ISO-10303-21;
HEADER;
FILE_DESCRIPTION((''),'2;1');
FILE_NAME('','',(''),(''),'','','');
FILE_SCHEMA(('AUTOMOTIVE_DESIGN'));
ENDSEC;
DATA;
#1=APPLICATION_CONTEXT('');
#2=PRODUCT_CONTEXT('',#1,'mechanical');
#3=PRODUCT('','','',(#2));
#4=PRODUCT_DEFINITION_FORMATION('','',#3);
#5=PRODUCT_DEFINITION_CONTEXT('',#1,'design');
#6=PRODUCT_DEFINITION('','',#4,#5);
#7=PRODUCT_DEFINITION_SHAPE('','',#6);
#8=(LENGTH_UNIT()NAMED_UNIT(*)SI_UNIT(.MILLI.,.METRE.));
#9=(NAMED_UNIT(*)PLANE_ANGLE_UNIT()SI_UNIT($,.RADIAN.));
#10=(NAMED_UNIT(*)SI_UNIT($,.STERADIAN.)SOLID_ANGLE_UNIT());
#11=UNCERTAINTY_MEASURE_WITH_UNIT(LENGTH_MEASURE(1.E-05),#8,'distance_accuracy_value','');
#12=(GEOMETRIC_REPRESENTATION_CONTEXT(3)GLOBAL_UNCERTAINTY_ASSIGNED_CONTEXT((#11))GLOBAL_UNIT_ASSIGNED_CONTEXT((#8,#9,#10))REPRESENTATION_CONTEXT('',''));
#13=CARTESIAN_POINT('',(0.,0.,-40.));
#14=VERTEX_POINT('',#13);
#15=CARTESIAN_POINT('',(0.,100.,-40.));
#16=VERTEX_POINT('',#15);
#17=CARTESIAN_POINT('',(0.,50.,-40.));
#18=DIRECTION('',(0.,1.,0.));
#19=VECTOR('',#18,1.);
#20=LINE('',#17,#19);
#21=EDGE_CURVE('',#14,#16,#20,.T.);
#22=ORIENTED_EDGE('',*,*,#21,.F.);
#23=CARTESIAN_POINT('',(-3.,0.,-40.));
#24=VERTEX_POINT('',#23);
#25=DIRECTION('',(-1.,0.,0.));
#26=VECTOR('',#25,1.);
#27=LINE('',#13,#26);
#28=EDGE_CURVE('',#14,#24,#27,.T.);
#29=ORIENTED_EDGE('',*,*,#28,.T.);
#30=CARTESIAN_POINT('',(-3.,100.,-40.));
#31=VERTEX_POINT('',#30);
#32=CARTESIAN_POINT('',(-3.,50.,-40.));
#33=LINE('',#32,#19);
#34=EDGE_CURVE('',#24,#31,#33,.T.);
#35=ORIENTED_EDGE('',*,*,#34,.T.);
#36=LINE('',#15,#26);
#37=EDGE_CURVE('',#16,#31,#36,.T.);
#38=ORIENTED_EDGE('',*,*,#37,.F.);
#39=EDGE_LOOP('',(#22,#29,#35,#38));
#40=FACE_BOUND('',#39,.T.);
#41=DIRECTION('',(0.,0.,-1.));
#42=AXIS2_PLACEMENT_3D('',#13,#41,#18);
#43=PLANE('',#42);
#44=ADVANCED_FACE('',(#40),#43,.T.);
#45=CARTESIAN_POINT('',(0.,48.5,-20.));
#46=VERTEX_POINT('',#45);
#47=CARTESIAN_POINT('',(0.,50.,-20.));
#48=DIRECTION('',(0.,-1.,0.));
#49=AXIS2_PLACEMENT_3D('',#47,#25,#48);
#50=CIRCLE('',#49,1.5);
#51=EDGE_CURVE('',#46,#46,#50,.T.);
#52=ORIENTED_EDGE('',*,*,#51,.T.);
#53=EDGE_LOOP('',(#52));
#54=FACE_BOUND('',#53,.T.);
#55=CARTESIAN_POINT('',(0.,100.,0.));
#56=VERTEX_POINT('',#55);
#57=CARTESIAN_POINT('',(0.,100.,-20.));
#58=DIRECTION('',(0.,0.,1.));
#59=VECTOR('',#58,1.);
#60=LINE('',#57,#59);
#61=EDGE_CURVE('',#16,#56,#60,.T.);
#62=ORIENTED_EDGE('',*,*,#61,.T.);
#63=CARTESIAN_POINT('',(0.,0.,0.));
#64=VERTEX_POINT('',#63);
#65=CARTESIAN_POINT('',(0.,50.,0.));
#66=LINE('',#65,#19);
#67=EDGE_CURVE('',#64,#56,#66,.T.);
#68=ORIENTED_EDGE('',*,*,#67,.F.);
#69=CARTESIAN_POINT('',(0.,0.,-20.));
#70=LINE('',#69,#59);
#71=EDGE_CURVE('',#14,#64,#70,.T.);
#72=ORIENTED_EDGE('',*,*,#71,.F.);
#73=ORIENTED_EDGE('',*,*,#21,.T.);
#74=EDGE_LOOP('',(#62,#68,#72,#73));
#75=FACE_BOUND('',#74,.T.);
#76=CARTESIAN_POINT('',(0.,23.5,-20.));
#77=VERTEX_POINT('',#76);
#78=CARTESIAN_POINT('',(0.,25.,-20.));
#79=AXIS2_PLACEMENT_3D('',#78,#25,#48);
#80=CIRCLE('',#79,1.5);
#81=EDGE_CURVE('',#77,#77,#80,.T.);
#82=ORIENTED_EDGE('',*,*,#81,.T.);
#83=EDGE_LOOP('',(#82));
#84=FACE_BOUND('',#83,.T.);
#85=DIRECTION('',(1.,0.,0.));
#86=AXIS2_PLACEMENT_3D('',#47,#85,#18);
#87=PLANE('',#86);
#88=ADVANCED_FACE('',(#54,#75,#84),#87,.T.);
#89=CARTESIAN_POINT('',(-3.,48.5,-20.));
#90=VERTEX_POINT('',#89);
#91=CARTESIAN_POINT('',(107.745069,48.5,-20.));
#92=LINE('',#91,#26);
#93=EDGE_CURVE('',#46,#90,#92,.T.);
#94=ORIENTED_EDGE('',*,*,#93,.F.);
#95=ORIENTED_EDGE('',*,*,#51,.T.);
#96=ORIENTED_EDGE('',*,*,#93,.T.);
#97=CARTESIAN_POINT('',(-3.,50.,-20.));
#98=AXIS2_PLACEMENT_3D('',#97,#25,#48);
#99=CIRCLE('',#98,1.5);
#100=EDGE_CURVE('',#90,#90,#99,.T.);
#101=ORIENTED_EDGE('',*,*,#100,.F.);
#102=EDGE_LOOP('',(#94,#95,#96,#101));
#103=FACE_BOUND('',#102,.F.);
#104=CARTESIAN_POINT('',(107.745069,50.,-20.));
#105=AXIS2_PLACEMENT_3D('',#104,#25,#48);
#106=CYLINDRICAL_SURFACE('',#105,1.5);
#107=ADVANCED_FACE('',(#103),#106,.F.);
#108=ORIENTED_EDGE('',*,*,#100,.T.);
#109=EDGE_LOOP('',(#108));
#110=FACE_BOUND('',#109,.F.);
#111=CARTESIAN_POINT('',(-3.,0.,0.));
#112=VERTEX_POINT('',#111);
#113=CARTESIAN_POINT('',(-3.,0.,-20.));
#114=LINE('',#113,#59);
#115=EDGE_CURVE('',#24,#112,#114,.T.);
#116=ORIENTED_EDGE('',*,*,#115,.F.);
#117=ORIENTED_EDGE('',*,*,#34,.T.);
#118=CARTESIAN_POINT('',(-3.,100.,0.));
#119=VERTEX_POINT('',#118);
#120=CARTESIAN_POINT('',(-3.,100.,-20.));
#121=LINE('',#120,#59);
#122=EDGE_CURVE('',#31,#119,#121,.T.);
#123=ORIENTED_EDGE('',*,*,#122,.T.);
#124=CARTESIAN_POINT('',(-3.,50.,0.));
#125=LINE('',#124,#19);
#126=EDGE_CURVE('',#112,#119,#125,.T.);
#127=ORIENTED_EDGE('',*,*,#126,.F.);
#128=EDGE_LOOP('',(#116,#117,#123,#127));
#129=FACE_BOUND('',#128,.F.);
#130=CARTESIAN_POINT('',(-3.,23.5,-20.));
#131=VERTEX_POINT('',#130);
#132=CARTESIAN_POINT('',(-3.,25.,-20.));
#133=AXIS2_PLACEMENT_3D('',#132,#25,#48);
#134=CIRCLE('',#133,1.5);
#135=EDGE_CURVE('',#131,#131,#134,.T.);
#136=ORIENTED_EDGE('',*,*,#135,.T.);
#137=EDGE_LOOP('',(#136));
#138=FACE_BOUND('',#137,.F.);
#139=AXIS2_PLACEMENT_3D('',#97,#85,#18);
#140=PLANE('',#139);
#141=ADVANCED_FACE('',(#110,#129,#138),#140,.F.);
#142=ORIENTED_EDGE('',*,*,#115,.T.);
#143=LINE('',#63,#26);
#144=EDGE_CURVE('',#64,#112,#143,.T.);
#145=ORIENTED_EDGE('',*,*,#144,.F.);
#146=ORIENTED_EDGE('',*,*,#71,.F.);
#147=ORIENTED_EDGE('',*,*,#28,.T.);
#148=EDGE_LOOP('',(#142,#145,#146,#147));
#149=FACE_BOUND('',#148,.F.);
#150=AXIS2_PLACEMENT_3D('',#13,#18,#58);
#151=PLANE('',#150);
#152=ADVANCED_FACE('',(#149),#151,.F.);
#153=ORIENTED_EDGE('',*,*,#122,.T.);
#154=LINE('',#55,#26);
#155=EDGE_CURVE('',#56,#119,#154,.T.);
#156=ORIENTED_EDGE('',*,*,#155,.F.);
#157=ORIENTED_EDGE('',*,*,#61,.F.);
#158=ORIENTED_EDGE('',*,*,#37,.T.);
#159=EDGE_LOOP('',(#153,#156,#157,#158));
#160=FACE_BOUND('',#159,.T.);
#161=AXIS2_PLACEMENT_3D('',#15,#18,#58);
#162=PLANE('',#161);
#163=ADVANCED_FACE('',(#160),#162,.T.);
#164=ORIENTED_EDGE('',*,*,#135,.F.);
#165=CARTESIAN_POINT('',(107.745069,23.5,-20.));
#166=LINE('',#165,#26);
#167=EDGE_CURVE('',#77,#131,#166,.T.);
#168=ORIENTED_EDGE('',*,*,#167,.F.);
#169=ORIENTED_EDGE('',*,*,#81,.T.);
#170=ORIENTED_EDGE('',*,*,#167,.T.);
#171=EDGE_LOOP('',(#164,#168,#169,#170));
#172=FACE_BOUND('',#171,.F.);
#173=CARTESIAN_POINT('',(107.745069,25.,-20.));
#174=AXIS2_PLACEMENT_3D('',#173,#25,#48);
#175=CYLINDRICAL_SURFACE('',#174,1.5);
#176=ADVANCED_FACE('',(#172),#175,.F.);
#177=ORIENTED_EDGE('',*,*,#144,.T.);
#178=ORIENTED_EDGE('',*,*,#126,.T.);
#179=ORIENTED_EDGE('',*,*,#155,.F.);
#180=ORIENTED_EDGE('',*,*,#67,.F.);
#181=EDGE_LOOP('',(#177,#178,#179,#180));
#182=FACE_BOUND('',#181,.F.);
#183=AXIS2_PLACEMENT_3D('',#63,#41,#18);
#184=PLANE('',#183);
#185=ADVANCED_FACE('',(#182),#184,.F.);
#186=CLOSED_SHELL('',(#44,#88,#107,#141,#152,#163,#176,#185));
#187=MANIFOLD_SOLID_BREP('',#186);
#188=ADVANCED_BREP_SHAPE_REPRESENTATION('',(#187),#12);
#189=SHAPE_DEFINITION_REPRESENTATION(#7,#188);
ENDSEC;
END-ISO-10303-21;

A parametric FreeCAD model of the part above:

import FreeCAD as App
import Part
import Sketcher
from FreeCAD import Vector


def add_polygon(sketch, points):
    """Adds a closed chain of lines whose ends are joined by coincident constraints."""
    first, n = sketch.GeometryCount, len(points)
    for a, b in zip(points, points[1:] + points[:1]):
        sketch.addGeometry(Part.LineSegment(App.Vector(*a, 0), App.Vector(*b, 0)), False)
    for i in range(n):
        sketch.addConstraint(Sketcher.Constraint("Coincident", first + i, 2, first + (i + 1) % n, 1))

doc = App.newDocument("Part")
body = doc.addObject("PartDesign::Body", "Body")

# Sketch on YZ plane
sketch1 = body.newObject("Sketcher::SketchObject", "Sketch")
sketch1.AttachmentSupport = (doc.getObject("YZ_Plane"), [""])
sketch1.MapMode = "FlatFace"
add_polygon(sketch1, [(0, 0), (0, -40), (100, -40), (100, 0)])  # lines 0-3
sketch1.addConstraint(Sketcher.Constraint("Vertical", 0))
sketch1.addConstraint(Sketcher.Constraint("Horizontal", 1))
sketch1.addConstraint(Sketcher.Constraint("Vertical", 2))
sketch1.addConstraint(Sketcher.Constraint("Horizontal", 3))
sketch1.addConstraint(Sketcher.Constraint("Coincident", 3, 2, -1, 1))
sketch1.addConstraint(Sketcher.Constraint("DistanceX", 1, 1, 1, 2, 100.0))
sketch1.addConstraint(Sketcher.Constraint("DistanceY", 0, 2, 0, 1, 40.0))
pad1 = body.newObject("PartDesign::Pad", "Pad")
pad1.Profile = sketch1
pad1.Length = 3
pad1.Reversed = True

# Sketch on YZ plane
sketch2 = body.newObject("Sketcher::SketchObject", "Sketch001")
sketch2.AttachmentSupport = (doc.getObject("YZ_Plane"), [""])
sketch2.MapMode = "FlatFace"
sketch2.addGeometry(Part.Circle(Vector(50, -20, 0), Vector(0, 0, 1), 1.5), False)
sketch2.addGeometry(Part.Circle(Vector(25, -20, 0), Vector(0, 0, 1), 1.5), False)
sketch2.addConstraint(Sketcher.Constraint("Equal", 0, 1))
sketch2.addConstraint(Sketcher.Constraint("Horizontal", 0, 3, 1, 3))
sketch2.addConstraint(Sketcher.Constraint("Diameter", 0, 3.0))
sketch2.addConstraint(Sketcher.Constraint("DistanceX", -1, 1, 0, 3, 50.0))
sketch2.addConstraint(Sketcher.Constraint("DistanceY", 0, 3, -1, 1, 20.0))
sketch2.addConstraint(Sketcher.Constraint("DistanceX", -1, 1, 1, 3, 25.0))
doc.recompute()
hole = body.newObject("PartDesign::Hole", "Hole")
hole.Profile = sketch2
hole.ThreadType = "None"
hole.Diameter = 3
hole.DepthType = "ThroughAll"

doc.recompute()
